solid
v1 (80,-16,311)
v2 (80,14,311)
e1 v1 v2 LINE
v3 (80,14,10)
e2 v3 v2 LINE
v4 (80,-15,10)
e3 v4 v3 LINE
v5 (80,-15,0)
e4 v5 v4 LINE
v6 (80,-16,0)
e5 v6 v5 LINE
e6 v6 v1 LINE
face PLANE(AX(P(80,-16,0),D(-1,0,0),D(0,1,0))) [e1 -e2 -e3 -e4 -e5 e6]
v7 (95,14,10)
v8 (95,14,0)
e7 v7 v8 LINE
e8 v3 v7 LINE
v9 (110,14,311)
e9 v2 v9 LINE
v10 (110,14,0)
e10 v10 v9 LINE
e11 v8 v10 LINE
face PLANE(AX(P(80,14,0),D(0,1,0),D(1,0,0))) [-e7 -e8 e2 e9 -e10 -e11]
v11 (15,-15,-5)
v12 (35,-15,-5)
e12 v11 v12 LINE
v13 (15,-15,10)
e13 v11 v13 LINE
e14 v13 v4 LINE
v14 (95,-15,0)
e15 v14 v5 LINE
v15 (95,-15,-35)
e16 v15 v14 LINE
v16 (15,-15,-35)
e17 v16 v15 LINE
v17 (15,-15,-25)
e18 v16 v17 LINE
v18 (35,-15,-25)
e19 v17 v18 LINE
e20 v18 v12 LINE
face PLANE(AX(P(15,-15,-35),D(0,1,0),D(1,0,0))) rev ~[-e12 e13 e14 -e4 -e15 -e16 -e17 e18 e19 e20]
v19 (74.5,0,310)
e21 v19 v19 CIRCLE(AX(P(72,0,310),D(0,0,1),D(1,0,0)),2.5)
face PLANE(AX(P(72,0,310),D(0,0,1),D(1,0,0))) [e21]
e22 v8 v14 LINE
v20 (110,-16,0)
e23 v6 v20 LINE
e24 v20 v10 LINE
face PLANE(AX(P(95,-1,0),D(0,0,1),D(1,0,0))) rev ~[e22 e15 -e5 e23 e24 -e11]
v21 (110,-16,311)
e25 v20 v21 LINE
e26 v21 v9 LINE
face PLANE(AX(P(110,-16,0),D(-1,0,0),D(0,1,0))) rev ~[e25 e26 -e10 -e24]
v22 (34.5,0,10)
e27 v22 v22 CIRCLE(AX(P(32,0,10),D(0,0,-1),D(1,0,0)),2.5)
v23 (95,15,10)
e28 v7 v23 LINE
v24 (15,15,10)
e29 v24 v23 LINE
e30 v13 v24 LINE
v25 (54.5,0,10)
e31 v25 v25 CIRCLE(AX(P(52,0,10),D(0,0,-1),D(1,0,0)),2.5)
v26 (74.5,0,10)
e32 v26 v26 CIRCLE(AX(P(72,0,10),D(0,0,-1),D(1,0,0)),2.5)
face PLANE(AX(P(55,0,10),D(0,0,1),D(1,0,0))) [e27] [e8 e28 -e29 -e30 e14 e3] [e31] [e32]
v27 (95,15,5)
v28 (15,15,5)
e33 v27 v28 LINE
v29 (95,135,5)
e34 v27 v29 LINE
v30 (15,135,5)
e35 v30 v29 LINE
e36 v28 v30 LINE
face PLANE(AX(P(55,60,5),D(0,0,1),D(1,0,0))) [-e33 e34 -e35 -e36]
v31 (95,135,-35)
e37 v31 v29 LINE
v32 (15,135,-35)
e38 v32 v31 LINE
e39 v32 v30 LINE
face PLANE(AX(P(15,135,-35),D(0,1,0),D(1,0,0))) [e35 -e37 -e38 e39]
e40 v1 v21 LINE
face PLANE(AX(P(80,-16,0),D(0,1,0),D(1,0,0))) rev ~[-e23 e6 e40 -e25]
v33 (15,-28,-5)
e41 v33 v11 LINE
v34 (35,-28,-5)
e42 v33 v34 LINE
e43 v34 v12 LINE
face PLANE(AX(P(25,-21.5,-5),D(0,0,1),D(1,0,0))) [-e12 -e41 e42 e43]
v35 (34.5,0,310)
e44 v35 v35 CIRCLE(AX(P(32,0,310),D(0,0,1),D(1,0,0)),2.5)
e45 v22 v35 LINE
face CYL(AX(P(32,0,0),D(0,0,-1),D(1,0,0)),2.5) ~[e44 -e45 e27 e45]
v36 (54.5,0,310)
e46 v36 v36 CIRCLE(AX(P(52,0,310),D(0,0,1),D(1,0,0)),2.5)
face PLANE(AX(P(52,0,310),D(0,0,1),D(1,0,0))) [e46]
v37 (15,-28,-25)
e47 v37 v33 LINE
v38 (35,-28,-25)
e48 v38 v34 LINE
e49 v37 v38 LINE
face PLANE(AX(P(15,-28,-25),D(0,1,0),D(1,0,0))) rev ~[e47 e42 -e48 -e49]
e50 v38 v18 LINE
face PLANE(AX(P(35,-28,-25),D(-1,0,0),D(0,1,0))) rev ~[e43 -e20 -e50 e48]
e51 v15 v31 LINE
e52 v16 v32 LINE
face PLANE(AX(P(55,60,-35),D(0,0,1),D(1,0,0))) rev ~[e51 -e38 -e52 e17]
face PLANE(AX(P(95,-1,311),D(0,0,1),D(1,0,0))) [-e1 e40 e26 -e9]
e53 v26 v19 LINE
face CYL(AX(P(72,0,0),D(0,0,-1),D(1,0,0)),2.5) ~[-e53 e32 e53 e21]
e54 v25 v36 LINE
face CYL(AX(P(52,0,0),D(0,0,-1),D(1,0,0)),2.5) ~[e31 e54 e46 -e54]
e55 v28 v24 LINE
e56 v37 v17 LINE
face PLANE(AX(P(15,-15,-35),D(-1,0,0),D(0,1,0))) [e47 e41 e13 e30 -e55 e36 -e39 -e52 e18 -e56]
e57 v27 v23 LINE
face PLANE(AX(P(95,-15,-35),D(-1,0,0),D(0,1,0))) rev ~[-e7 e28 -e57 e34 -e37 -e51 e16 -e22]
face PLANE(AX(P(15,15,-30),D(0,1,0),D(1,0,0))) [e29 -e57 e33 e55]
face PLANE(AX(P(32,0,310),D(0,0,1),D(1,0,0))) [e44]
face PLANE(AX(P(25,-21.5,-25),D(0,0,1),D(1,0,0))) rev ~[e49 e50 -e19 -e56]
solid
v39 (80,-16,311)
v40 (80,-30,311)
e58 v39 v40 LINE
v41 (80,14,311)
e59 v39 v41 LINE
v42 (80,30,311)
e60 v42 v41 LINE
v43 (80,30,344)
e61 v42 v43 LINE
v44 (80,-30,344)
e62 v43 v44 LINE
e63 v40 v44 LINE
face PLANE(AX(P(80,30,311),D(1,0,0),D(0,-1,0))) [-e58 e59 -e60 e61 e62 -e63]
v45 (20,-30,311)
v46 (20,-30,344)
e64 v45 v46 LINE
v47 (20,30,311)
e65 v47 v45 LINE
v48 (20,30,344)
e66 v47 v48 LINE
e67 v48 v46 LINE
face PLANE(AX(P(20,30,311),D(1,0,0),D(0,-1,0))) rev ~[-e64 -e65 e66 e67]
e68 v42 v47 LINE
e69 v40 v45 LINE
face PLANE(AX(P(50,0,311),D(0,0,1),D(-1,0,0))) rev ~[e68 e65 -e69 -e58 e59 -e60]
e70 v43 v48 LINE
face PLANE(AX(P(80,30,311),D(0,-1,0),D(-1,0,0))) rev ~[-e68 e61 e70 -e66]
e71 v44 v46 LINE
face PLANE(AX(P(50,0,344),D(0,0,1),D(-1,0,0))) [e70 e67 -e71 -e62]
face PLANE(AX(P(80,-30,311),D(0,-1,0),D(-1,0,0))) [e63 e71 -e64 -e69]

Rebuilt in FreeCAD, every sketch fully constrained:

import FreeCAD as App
import Part
import Sketcher
Q = App.Units.Quantity


def add_polygon(sketch, points):
    """Adds a closed chain of lines whose ends are joined by coincident constraints."""
    first, n = sketch.GeometryCount, len(points)
    for a, b in zip(points, points[1:] + points[:1]):
        sketch.addGeometry(Part.LineSegment(App.Vector(*a, 0), App.Vector(*b, 0)), False)
    for i in range(n):
        sketch.addConstraint(Sketcher.Constraint("Coincident", first + i, 2, first + (i + 1) % n, 1))

doc = App.newDocument("Part")
body = doc.addObject("PartDesign::Body", "Body")

# Sketch on XY plane
sketch1 = doc.addObject("Sketcher::SketchObject", "Sketch")
body.addObject(sketch1)
sketch1.AttachmentSupport = (doc.XY_Plane, [""])
sketch1.MapMode = "FlatFace"
sketch1.AttachmentOffset = App.Placement(App.Vector(0, 0, -35), App.Rotation())
add_polygon(sketch1, [(15, 135), (15, -15), (95, -15), (95, 135)])  # lines 0-3
sketch1.addConstraint([
    Sketcher.Constraint("Vertical", 0),
    Sketcher.Constraint("Horizontal", 1),
    Sketcher.Constraint("Vertical", 2),
    Sketcher.Constraint("Horizontal", 3),
    Sketcher.Constraint("DistanceX", 1, 1, 1, 2, Q("80 mm")),
    Sketcher.Constraint("DistanceY", 0, 2, 0, 1, Q("150 mm")),
    Sketcher.Constraint("DistanceX", -1, 1, 0, 2, Q("15 mm")),
    Sketcher.Constraint("DistanceY", 0, 2, -1, 1, Q("15 mm")),
])
pad1 = doc.addObject("PartDesign::Pad", "Pad")
body.addObject(pad1)
pad1.Profile = sketch1
pad1.Length = 40
body2 = doc.addObject("PartDesign::Body", "Body001")

# Sketch on XY plane
sketch2 = doc.addObject("Sketcher::SketchObject", "Sketch001")
body2.addObject(sketch2)
sketch2.AttachmentSupport = (doc.getObject("XY_Plane001"), [""])
sketch2.MapMode = "FlatFace"
sketch2.addGeometry(Part.Circle(App.Vector(32, 0, 0), App.Vector(0, 0, 1), 2.5), False)
sketch2.addConstraint([
    Sketcher.Constraint("PointOnObject", 0, 3, -1),
    Sketcher.Constraint("Diameter", 0, Q("5 mm")),
    Sketcher.Constraint("DistanceX", -1, 1, 0, 3, Q("32 mm")),
])
pad2 = doc.addObject("PartDesign::Pad", "Pad001")
body2.addObject(pad2)
pad2.Profile = sketch2
pad2.Length = 310
body3 = doc.addObject("PartDesign::Body", "Body002")

# Sketch on XY plane
sketch3 = doc.addObject("Sketcher::SketchObject", "Sketch002")
body3.addObject(sketch3)
sketch3.AttachmentSupport = (doc.getObject("XY_Plane002"), [""])
sketch3.MapMode = "FlatFace"
sketch3.addGeometry(Part.Circle(App.Vector(72, 0, 0), App.Vector(0, 0, 1), 2.5), False)
sketch3.addConstraint([
    Sketcher.Constraint("PointOnObject", 0, 3, -1),
    Sketcher.Constraint("Diameter", 0, Q("5 mm")),
    Sketcher.Constraint("DistanceX", -1, 1, 0, 3, Q("72 mm")),
])
pad3 = doc.addObject("PartDesign::Pad", "Pad002")
body3.addObject(pad3)
pad3.Profile = sketch3
pad3.Length = 310
body4 = doc.addObject("PartDesign::Body", "Body003")

# Sketch on XY plane
sketch4 = doc.addObject("Sketcher::SketchObject", "Sketch003")
body4.addObject(sketch4)
sketch4.AttachmentSupport = (doc.getObject("XY_Plane003"), [""])
sketch4.MapMode = "FlatFace"
sketch4.addGeometry(Part.Circle(App.Vector(52, 0, 0), App.Vector(0, 0, 1), 2.5), False)
sketch4.addConstraint([
    Sketcher.Constraint("PointOnObject", 0, 3, -1),
    Sketcher.Constraint("Diameter", 0, Q("5 mm")),
    Sketcher.Constraint("DistanceX", -1, 1, 0, 3, Q("52 mm")),
])
pad4 = doc.addObject("PartDesign::Pad", "Pad003")
body4.addObject(pad4)
pad4.Profile = sketch4
pad4.Length = 310
body5 = doc.addObject("PartDesign::Body", "Body004")

# Sketch on XY plane
sketch5 = doc.addObject("Sketcher::SketchObject", "Sketch004")
body5.addObject(sketch5)
sketch5.AttachmentSupport = (doc.getObject("XY_Plane004"), [""])
sketch5.MapMode = "FlatFace"
sketch5.AttachmentOffset = App.Placement(App.Vector(0, 0, 311), App.Rotation())
add_polygon(sketch5, [(80, -30), (80, 30), (20, 30), (20, -30)])  # lines 0-3
sketch5.addConstraint([
    Sketcher.Constraint("Vertical", 0),
    Sketcher.Constraint("Horizontal", 1),
    Sketcher.Constraint("Vertical", 2),
    Sketcher.Constraint("Horizontal", 3),
    Sketcher.Constraint("Equal", 3, 0),
    Sketcher.Constraint("DistanceX", 1, 2, 1, 1, Q("60 mm")),
    Sketcher.Constraint("DistanceX", -1, 1, 0, 2, Q("80 mm")),
    Sketcher.Constraint("DistanceY", -1, 1, 0, 2, Q("30 mm")),
])
pad5 = doc.addObject("PartDesign::Pad", "Pad004")
body5.addObject(pad5)
pad5.Profile = sketch5
pad5.Length = 33
body6 = doc.addObject("PartDesign::Body", "Body005")

# Sketch on XY plane
sketch6 = doc.addObject("Sketcher::SketchObject", "Sketch005")
body6.addObject(sketch6)
sketch6.AttachmentSupport = (doc.getObject("XY_Plane005"), [""])
sketch6.MapMode = "FlatFace"
sketch6.AttachmentOffset = App.Placement(App.Vector(0, 0, -30), App.Rotation())
add_polygon(sketch6, [(15, 15), (15, -15), (95, -15), (95, 15)])  # lines 0-3
sketch6.addConstraint([
    Sketcher.Constraint("Vertical", 0),
    Sketcher.Constraint("Horizontal", 1),
    Sketcher.Constraint("Vertical", 2),
    Sketcher.Constraint("Horizontal", 3),
    Sketcher.Constraint("DistanceX", 1, 1, 1, 2, Q("80 mm")),
    Sketcher.Constraint("DistanceY", 0, 2, 0, 1, Q("30 mm")),
    Sketcher.Constraint("DistanceX", -1, 1, 0, 2, Q("15 mm")),
    Sketcher.Constraint("DistanceY", 0, 2, -1, 1, Q("15 mm")),
])
pad6 = doc.addObject("PartDesign::Pad", "Pad005")
body6.addObject(pad6)
pad6.Profile = sketch6
pad6.Length = 40
body7 = doc.addObject("PartDesign::Body", "Body006")

# Sketch on XY plane
sketch7 = doc.addObject("Sketcher::SketchObject", "Sketch006")
body7.addObject(sketch7)
sketch7.AttachmentSupport = (doc.getObject("XY_Plane006"), [""])
sketch7.MapMode = "FlatFace"
sketch7.AttachmentOffset = App.Placement(App.Vector(0, 0, -25), App.Rotation())
add_polygon(sketch7, [(15, -15), (15, -28), (35, -28), (35, -15)])  # lines 0-3
sketch7.addConstraint([
    Sketcher.Constraint("Vertical", 0),
    Sketcher.Constraint("Horizontal", 1),
    Sketcher.Constraint("Vertical", 2),
    Sketcher.Constraint("Horizontal", 3),
    Sketcher.Constraint("DistanceX", 1, 1, 1, 2, Q("20 mm")),
    Sketcher.Constraint("DistanceY", 0, 2, 0, 1, Q("13 mm")),
    Sketcher.Constraint("DistanceX", -1, 1, 0, 2, Q("15 mm")),
    Sketcher.Constraint("DistanceY", 0, 2, -1, 1, Q("28 mm")),
])
pad7 = doc.addObject("PartDesign::Pad", "Pad006")
body7.addObject(pad7)
pad7.Profile = sketch7
pad7.Length = 20
body8 = doc.addObject("PartDesign::Body", "Body007")
body8.AllowCompound = True

# Sketch on XY plane
sketch8 = doc.addObject("Sketcher::SketchObject", "Sketch007")
body8.addObject(sketch8)
sketch8.AttachmentSupport = (doc.getObject("XY_Plane007"), [""])
sketch8.MapMode = "FlatFace"
add_polygon(sketch8, [(80, 14), (80, -16), (110, -16), (110, 14)])  # lines 0-3
sketch8.addConstraint([
    Sketcher.Constraint("Vertical", 0),
    Sketcher.Constraint("Horizontal", 1),
    Sketcher.Constraint("Vertical", 2),
    Sketcher.Constraint("Horizontal", 3),
    Sketcher.Constraint("Equal", 3, 0),
    Sketcher.Constraint("DistanceX", 1, 1, 1, 2, Q("30 mm")),
    Sketcher.Constraint("DistanceX", -1, 1, 0, 2, Q("80 mm")),
    Sketcher.Constraint("DistanceY", 0, 2, -1, 1, Q("16 mm")),
])
pad8 = doc.addObject("PartDesign::Pad", "Pad007")
body8.addObject(pad8)
pad8.Profile = sketch8
pad8.Length = 311
doc.recompute()

boolean = doc.addObject("PartDesign::Boolean", "Boolean")
body8.addObject(boolean)
boolean.Type = "Fuse"
boolean.addObjects([body])
doc.recompute()

boolean2 = doc.addObject("PartDesign::Boolean", "Boolean001")
body8.addObject(boolean2)
boolean2.Type = "Fuse"
boolean2.addObjects([body2])
doc.recompute()

boolean3 = doc.addObject("PartDesign::Boolean", "Boolean002")
body8.addObject(boolean3)
boolean3.Type = "Fuse"
boolean3.addObjects([body3])
doc.recompute()

boolean4 = doc.addObject("PartDesign::Boolean", "Boolean003")
body8.addObject(boolean4)
boolean4.Type = "Fuse"
boolean4.addObjects([body4])
doc.recompute()

boolean5 = doc.addObject("PartDesign::Boolean", "Boolean004")
body8.addObject(boolean5)
boolean5.Type = "Fuse"
boolean5.addObjects([body5])
doc.recompute()

boolean6 = doc.addObject("PartDesign::Boolean", "Boolean005")
body8.addObject(boolean6)
boolean6.Type = "Fuse"
boolean6.addObjects([body6])
doc.recompute()

boolean7 = doc.addObject("PartDesign::Boolean", "Boolean006")
body8.addObject(boolean7)
boolean7.Type = "Fuse"
boolean7.addObjects([body7])

doc.recompute()
